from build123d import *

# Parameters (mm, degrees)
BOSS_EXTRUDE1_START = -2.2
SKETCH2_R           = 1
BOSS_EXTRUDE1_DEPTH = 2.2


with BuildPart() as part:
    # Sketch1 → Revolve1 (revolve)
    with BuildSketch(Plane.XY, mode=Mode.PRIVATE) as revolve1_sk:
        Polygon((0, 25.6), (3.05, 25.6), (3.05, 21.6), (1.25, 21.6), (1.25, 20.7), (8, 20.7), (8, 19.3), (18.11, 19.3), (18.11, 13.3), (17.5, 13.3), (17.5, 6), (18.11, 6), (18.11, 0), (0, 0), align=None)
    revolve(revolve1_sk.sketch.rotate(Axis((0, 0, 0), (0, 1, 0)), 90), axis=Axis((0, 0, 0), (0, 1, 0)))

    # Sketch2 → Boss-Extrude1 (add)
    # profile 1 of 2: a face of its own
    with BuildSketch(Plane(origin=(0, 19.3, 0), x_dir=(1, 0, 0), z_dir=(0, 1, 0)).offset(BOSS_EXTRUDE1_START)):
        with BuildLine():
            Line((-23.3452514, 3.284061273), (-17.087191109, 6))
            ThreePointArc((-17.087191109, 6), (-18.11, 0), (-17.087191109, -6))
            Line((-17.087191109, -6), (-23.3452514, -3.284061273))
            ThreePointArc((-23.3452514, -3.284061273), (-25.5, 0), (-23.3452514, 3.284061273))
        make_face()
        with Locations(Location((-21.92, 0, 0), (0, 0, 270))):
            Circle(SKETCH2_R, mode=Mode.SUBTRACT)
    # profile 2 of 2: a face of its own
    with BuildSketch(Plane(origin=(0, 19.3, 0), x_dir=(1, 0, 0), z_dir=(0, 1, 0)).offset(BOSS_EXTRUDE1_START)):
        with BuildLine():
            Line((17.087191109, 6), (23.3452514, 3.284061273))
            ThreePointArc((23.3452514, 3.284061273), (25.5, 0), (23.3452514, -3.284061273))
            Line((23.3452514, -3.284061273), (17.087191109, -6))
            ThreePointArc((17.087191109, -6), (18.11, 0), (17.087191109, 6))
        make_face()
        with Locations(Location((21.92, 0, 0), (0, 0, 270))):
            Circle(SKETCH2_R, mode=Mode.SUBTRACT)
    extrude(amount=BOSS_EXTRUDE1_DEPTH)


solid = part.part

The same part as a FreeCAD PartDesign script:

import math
import FreeCAD as App
import Part
import Sketcher

V = App.Vector
Q = App.Units.Quantity

doc = App.newDocument("Part")
body = doc.addObject("PartDesign::Body", "Body")

# Sketch on XY plane
sketch1 = doc.addObject("Sketcher::SketchObject", "Sketch")
body.addObject(sketch1)
sketch1.AttachmentSupport = (doc.XY_Plane, [""])
sketch1.MapMode = "FlatFace"
sketch1.addGeometry([
    Part.LineSegment(V(3.05, 25.6, 0), V(0, 25.6, 0)),  # 0
    Part.LineSegment(V(0, 25.6, 0), V(0, 0, 0)),  # 1
    Part.LineSegment(V(0, 0, 0), V(18.11, 0, 0)),  # 2
    Part.LineSegment(V(18.11, 0, 0), V(18.11, 6, 0)),  # 3
    Part.LineSegment(V(18.11, 6, 0), V(17.5, 6, 0)),  # 4
    Part.LineSegment(V(17.5, 6, 0), V(17.5, 13.3, 0)),  # 5
    Part.LineSegment(V(17.5, 13.3, 0), V(18.11, 13.3, 0)),  # 6
    Part.LineSegment(V(18.11, 13.3, 0), V(18.11, 19.3, 0)),  # 7
    Part.LineSegment(V(18.11, 19.3, 0), V(8, 19.3, 0)),  # 8
    Part.LineSegment(V(8, 19.3, 0), V(8, 20.7, 0)),  # 9
    Part.LineSegment(V(8, 20.7, 0), V(1.25, 20.7, 0)),  # 10
    Part.LineSegment(V(1.25, 20.7, 0), V(1.25, 21.6, 0)),  # 11
    Part.LineSegment(V(1.25, 21.6, 0), V(3.05, 21.6, 0)),  # 12
    Part.LineSegment(V(3.05, 21.6, 0), V(3.05, 25.6, 0)),  # 13
], False)
sketch1.addConstraint([
    Sketcher.Constraint("Coincident", 0, 2, 1, 1),
    Sketcher.Constraint("Coincident", 1, 2, 2, 1),
    Sketcher.Constraint("Coincident", 2, 2, 3, 1),
    Sketcher.Constraint("Coincident", 3, 2, 4, 1),
    Sketcher.Constraint("Coincident", 4, 2, 5, 1),
    Sketcher.Constraint("Coincident", 5, 2, 6, 1),
    Sketcher.Constraint("Coincident", 6, 2, 7, 1),
    Sketcher.Constraint("Coincident", 7, 2, 8, 1),
    Sketcher.Constraint("Coincident", 8, 2, 9, 1),
    Sketcher.Constraint("Coincident", 9, 2, 10, 1),
    Sketcher.Constraint("Coincident", 10, 2, 11, 1),
    Sketcher.Constraint("Coincident", 11, 2, 12, 1),
    Sketcher.Constraint("Coincident", 12, 2, 13, 1),
    Sketcher.Constraint("Coincident", 13, 2, 0, 1),
    Sketcher.Constraint("Horizontal", 0),
    Sketcher.Constraint("Vertical", 1),
    Sketcher.Constraint("Horizontal", 2),
    Sketcher.Constraint("Vertical", 3),
    Sketcher.Constraint("Horizontal", 4),
    Sketcher.Constraint("Vertical", 5),
    Sketcher.Constraint("Horizontal", 6),
    Sketcher.Constraint("Vertical", 7),
    Sketcher.Constraint("Horizontal", 8),
    Sketcher.Constraint("Vertical", 9),
    Sketcher.Constraint("Horizontal", 10),
    Sketcher.Constraint("Vertical", 11),
    Sketcher.Constraint("Horizontal", 12),
    Sketcher.Constraint("Vertical", 13),
    Sketcher.Constraint("Coincident", 1, 2, -1, 1),
    Sketcher.Constraint("Vertical", 3, 2, 6, 2),
    Sketcher.Constraint("Equal", 3, 7),
    Sketcher.Constraint("DistanceY", 3, 1, 3, 2, Q("6 mm")),
    Sketcher.Constraint("DistanceY", 13, 1, 13, 2, Q("4 mm")),
    Sketcher.Constraint("DistanceX", 12, 1, 12, 2, Q("1.8 mm")),
    Sketcher.Constraint("DistanceY", 1, 2, 1, 1, Q("25.6 mm")),
    Sketcher.Constraint("DistanceY", 5, 1, 5, 2, Q("7.3 mm")),
    Sketcher.Constraint("DistanceY", 9, 1, 9, 2, Q("1.4 mm")),
    Sketcher.Constraint("DistanceX", -1, 1, 8, 2, Q("8 mm")),
    Sketcher.Constraint("DistanceX", 0, 2, 0, 1, Q("3.05 mm")),
    Sketcher.Constraint("DistanceX", 2, 1, 2, 2, Q("18.11 mm")),
    Sketcher.Constraint("DistanceX", 4, 2, 4, 1, Q("0.61 mm")),
])
revolution = doc.addObject("PartDesign::Revolution", "Revolution")
body.addObject(revolution)
revolution.Profile = sketch1
revolution.ReferenceAxis = (sketch1, ["V_Axis"])
revolution.Angle = 360

# Sketch on XZ plane
sketch2 = doc.addObject("Sketcher::SketchObject", "Sketch001")
body.addObject(sketch2)
sketch2.AttachmentSupport = (doc.XZ_Plane, [""])
sketch2.MapMode = "FlatFace"
sketch2.AttachmentOffset = App.Placement(V(0, 0, -17.1), App.Rotation())
sketch2.addGeometry([
    Part.LineSegment(V(-17.087191, -6, 0), V(-23.345251, -3.284061, 0)),  # 0
    Part.ArcOfCircle(Part.Circle(V(-21.92, 0, 0), V(0, 0, 1), 3.58), math.radians(113.460386), math.radians(246.539614)),  # 1
    Part.LineSegment(V(-23.345251, 3.284061, 0), V(-17.087191, 6, 0)),  # 2
    Part.ArcOfCircle(Part.Circle(V(0, 0, 0), V(0, 0, 1), 18.11), math.radians(160.651774), math.radians(199.348226)),  # 3
    Part.Circle(V(-21.92, 0, 0), V(0, 0, 1), 1),  # 4
    Part.LineSegment(V(23.345251, -3.284061, 0), V(17.087191, -6, 0)),  # 5
    Part.ArcOfCircle(Part.Circle(V(0, 0, 0), V(0, 0, 1), 18.11), math.radians(-19.348226), math.radians(19.348226)),  # 6
    Part.LineSegment(V(17.087191, 6, 0), V(23.345251, 3.284061, 0)),  # 7
    Part.ArcOfCircle(Part.Circle(V(21.92, 0, 0), V(0, 0, 1), 3.58), math.radians(-66.539614), math.radians(66.539614)),  # 8
    Part.Circle(V(21.92, 0, 0), V(0, 0, 1), 1),  # 9
], False)
sketch2.addConstraint([
    Sketcher.Constraint("Tangent", 0, 2, 1, 2),
    Sketcher.Constraint("Tangent", 1, 1, 2, 1),
    Sketcher.Constraint("Coincident", 2, 2, 3, 1),
    Sketcher.Constraint("Coincident", 3, 2, 0, 1),
    Sketcher.Constraint("Coincident", 5, 2, 6, 1),
    Sketcher.Constraint("Coincident", 6, 2, 7, 1),
    Sketcher.Constraint("Tangent", 7, 2, 8, 2),
    Sketcher.Constraint("Tangent", 8, 1, 5, 1),
    Sketcher.Constraint("Coincident", 3, 3, -1, 1),
    Sketcher.Constraint("Coincident", 6, 3, -1, 1),
    Sketcher.Constraint("Coincident", 4, 3, 1, 3),
    Sketcher.Constraint("Coincident", 9, 3, 8, 3),
    Sketcher.Constraint("Equal", 3, 6),
    Sketcher.Constraint("Equal", 1, 8),
    Sketcher.Constraint("Equal", 4, 9),
    Sketcher.Constraint("Symmetric", 1, 3, 8, 3, -1, 1),
    Sketcher.Constraint("Symmetric", 1, 1, 7, 2, -2),
    Sketcher.Constraint("Parallel", 2, 5),
    Sketcher.Constraint("Parallel", 0, 7),
    Sketcher.Constraint("Diameter", 4, Q("2 mm")),
    Sketcher.Constraint("Radius", 1, Q("3.58 mm")),
    Sketcher.Constraint("Radius", 3, Q("18.11 mm")),
    Sketcher.Constraint("DistanceY", -1, 1, 2, 2, Q("6 mm")),
    Sketcher.Constraint("DistanceX", 1, 3, -1, 1, Q("21.92 mm")),
])
pad1 = doc.addObject("PartDesign::Pad", "Pad")
body.addObject(pad1)
pad1.Profile = sketch2
pad1.Length = 2.2
pad1.Reversed = True

doc.recompute()
